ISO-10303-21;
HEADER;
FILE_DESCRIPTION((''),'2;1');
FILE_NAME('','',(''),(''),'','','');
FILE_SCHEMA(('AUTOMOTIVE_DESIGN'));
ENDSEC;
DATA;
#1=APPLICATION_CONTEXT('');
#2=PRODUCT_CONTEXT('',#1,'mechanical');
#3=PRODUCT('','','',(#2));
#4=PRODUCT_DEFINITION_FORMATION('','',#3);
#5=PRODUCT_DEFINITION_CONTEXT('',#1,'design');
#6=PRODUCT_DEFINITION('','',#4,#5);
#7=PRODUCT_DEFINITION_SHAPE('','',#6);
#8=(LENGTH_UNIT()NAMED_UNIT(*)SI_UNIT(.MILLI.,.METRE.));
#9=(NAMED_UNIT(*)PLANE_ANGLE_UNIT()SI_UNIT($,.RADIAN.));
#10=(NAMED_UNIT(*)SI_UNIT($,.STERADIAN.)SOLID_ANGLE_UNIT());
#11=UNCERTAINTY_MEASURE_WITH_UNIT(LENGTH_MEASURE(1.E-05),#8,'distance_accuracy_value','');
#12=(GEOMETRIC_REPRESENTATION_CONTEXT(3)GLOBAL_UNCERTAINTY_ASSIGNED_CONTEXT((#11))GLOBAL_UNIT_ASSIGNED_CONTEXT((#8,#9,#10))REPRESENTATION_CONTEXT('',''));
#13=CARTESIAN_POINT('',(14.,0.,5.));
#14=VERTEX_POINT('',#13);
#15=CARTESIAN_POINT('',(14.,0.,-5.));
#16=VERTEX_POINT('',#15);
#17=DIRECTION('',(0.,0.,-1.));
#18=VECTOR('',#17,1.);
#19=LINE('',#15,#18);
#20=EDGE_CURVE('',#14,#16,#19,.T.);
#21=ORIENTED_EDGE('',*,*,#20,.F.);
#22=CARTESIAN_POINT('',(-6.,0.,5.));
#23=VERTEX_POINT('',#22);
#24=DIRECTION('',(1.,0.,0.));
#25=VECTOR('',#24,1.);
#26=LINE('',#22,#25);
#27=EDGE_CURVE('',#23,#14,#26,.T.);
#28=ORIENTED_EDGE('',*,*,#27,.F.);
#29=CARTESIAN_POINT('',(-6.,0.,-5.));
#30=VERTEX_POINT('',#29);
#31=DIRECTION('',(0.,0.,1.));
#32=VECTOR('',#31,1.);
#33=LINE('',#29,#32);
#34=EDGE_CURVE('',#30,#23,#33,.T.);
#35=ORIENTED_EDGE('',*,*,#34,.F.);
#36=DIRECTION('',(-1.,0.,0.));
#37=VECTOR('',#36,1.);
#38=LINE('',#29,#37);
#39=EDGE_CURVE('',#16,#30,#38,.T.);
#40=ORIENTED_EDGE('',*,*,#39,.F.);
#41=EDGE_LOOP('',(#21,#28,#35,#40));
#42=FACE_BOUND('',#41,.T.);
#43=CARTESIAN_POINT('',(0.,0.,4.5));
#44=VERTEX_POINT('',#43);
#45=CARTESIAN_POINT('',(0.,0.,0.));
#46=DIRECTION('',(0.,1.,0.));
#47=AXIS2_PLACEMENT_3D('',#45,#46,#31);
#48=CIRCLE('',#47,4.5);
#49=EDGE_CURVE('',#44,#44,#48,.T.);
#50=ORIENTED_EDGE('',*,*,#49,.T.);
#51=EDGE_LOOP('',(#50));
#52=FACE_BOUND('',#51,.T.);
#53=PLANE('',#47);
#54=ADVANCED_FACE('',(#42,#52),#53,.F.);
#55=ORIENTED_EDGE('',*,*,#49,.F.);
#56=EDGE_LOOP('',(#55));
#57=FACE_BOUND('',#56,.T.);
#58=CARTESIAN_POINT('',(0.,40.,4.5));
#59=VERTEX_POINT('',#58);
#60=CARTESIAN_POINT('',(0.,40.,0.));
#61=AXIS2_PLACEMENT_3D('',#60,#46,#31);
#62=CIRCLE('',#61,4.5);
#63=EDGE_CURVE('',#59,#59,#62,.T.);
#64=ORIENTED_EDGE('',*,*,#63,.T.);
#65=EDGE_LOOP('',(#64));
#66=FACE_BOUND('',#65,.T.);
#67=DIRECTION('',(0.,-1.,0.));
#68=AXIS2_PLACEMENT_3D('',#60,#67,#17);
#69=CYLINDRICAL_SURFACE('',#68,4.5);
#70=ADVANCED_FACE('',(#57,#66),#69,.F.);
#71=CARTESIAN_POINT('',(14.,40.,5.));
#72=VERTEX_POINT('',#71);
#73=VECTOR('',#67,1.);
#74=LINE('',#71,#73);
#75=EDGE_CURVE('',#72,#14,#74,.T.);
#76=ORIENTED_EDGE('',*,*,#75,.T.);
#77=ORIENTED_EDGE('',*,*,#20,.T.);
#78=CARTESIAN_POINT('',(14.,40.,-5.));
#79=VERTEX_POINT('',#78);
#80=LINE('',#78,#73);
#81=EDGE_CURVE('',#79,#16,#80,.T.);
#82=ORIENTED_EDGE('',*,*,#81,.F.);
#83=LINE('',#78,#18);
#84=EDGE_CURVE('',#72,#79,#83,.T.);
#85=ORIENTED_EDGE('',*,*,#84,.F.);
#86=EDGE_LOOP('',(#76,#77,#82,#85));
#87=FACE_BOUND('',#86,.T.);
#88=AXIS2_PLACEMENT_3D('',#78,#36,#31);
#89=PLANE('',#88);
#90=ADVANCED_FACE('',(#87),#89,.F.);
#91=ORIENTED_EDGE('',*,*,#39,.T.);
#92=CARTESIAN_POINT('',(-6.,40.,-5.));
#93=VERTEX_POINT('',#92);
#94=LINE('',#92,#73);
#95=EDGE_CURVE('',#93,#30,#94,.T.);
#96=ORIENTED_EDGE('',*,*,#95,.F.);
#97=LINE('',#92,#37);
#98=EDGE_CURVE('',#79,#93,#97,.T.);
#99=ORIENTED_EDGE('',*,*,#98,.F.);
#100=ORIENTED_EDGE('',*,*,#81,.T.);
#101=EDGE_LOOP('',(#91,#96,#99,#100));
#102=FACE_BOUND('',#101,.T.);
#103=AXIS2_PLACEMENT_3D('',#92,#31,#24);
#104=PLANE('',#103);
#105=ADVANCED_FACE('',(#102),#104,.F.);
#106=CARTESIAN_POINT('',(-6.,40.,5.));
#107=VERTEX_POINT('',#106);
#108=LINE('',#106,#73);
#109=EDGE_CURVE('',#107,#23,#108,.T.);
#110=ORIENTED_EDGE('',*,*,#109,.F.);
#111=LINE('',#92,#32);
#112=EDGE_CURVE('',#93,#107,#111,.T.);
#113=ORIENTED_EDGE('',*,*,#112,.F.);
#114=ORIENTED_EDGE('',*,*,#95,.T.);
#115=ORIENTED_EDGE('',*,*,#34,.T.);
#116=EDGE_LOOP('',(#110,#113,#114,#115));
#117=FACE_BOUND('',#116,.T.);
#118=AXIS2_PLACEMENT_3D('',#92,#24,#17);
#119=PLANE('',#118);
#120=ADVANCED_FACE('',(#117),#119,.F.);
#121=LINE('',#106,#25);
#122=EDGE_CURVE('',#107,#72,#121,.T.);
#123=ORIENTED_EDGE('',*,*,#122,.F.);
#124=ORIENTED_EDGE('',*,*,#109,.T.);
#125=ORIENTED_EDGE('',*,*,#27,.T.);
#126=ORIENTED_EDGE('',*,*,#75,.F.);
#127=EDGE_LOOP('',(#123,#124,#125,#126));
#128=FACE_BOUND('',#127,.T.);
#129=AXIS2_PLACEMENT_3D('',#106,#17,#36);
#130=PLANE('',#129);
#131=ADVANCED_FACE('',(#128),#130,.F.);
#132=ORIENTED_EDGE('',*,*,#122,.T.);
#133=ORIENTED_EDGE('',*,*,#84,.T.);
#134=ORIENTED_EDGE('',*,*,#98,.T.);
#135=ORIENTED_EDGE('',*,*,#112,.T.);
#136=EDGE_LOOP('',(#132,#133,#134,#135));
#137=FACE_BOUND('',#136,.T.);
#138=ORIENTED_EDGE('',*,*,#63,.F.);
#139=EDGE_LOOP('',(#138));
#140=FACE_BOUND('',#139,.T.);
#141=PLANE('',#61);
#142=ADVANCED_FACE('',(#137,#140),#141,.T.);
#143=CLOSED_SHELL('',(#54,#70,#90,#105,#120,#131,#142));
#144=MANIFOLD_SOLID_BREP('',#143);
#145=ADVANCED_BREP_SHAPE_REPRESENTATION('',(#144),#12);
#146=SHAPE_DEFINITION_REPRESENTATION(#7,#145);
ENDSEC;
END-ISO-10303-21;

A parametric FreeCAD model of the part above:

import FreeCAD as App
import Part
import Sketcher

V = App.Vector
Q = App.Units.Quantity

doc = App.newDocument("Part")
body = doc.addObject("PartDesign::Body", "Body")

# Sketch on XZ plane
sketch1 = body.newObject("Sketcher::SketchObject", "Sketch")
sketch1.AttachmentSupport = (doc.getObject("XZ_Plane"), [""])
sketch1.MapMode = "FlatFace"
sketch1.addGeometry(Part.LineSegment(V(-6, -5, 0), V(-6, 5, 0)), False)
sketch1.addGeometry(Part.LineSegment(V(-6, 5, 0), V(14, 5, 0)), False)
sketch1.addGeometry(Part.LineSegment(V(14, 5, 0), V(14, -5, 0)), False)
sketch1.addGeometry(Part.LineSegment(V(14, -5, 0), V(-6, -5, 0)), False)
sketch1.addGeometry(Part.Circle(V(0, 0, 0), V(0, 0, 1), 4.5), False)
sketch1.addConstraint(Sketcher.Constraint("Coincident", 0, 2, 1, 1))
sketch1.addConstraint(Sketcher.Constraint("Coincident", 1, 2, 2, 1))
sketch1.addConstraint(Sketcher.Constraint("Coincident", 2, 2, 3, 1))
sketch1.addConstraint(Sketcher.Constraint("Coincident", 3, 2, 0, 1))
sketch1.addConstraint(Sketcher.Constraint("Vertical", 0))
sketch1.addConstraint(Sketcher.Constraint("Horizontal", 1))
sketch1.addConstraint(Sketcher.Constraint("Vertical", 2))
sketch1.addConstraint(Sketcher.Constraint("Horizontal", 3))
sketch1.addConstraint(Sketcher.Constraint("Coincident", 4, 3, -1, 1))
sketch1.addConstraint(Sketcher.Constraint("Diameter", 4, Q("9 mm")))
sketch1.addConstraint(Sketcher.Constraint("DistanceX", 1, 1, 1, 2, Q("20 mm")))
sketch1.addConstraint(Sketcher.Constraint("DistanceY", 0, 1, 0, 2, Q("10 mm")))
sketch1.addConstraint(Sketcher.Constraint("DistanceX", 0, 2, -1, 1, Q("6 mm")))
sketch1.addConstraint(Sketcher.Constraint("DistanceY", -1, 1, 0, 2, Q("5 mm")))
pad1 = body.newObject("PartDesign::Pad", "Pad")
pad1.Profile = sketch1
pad1.Length = 40
pad1.Reversed = True

doc.recompute()
